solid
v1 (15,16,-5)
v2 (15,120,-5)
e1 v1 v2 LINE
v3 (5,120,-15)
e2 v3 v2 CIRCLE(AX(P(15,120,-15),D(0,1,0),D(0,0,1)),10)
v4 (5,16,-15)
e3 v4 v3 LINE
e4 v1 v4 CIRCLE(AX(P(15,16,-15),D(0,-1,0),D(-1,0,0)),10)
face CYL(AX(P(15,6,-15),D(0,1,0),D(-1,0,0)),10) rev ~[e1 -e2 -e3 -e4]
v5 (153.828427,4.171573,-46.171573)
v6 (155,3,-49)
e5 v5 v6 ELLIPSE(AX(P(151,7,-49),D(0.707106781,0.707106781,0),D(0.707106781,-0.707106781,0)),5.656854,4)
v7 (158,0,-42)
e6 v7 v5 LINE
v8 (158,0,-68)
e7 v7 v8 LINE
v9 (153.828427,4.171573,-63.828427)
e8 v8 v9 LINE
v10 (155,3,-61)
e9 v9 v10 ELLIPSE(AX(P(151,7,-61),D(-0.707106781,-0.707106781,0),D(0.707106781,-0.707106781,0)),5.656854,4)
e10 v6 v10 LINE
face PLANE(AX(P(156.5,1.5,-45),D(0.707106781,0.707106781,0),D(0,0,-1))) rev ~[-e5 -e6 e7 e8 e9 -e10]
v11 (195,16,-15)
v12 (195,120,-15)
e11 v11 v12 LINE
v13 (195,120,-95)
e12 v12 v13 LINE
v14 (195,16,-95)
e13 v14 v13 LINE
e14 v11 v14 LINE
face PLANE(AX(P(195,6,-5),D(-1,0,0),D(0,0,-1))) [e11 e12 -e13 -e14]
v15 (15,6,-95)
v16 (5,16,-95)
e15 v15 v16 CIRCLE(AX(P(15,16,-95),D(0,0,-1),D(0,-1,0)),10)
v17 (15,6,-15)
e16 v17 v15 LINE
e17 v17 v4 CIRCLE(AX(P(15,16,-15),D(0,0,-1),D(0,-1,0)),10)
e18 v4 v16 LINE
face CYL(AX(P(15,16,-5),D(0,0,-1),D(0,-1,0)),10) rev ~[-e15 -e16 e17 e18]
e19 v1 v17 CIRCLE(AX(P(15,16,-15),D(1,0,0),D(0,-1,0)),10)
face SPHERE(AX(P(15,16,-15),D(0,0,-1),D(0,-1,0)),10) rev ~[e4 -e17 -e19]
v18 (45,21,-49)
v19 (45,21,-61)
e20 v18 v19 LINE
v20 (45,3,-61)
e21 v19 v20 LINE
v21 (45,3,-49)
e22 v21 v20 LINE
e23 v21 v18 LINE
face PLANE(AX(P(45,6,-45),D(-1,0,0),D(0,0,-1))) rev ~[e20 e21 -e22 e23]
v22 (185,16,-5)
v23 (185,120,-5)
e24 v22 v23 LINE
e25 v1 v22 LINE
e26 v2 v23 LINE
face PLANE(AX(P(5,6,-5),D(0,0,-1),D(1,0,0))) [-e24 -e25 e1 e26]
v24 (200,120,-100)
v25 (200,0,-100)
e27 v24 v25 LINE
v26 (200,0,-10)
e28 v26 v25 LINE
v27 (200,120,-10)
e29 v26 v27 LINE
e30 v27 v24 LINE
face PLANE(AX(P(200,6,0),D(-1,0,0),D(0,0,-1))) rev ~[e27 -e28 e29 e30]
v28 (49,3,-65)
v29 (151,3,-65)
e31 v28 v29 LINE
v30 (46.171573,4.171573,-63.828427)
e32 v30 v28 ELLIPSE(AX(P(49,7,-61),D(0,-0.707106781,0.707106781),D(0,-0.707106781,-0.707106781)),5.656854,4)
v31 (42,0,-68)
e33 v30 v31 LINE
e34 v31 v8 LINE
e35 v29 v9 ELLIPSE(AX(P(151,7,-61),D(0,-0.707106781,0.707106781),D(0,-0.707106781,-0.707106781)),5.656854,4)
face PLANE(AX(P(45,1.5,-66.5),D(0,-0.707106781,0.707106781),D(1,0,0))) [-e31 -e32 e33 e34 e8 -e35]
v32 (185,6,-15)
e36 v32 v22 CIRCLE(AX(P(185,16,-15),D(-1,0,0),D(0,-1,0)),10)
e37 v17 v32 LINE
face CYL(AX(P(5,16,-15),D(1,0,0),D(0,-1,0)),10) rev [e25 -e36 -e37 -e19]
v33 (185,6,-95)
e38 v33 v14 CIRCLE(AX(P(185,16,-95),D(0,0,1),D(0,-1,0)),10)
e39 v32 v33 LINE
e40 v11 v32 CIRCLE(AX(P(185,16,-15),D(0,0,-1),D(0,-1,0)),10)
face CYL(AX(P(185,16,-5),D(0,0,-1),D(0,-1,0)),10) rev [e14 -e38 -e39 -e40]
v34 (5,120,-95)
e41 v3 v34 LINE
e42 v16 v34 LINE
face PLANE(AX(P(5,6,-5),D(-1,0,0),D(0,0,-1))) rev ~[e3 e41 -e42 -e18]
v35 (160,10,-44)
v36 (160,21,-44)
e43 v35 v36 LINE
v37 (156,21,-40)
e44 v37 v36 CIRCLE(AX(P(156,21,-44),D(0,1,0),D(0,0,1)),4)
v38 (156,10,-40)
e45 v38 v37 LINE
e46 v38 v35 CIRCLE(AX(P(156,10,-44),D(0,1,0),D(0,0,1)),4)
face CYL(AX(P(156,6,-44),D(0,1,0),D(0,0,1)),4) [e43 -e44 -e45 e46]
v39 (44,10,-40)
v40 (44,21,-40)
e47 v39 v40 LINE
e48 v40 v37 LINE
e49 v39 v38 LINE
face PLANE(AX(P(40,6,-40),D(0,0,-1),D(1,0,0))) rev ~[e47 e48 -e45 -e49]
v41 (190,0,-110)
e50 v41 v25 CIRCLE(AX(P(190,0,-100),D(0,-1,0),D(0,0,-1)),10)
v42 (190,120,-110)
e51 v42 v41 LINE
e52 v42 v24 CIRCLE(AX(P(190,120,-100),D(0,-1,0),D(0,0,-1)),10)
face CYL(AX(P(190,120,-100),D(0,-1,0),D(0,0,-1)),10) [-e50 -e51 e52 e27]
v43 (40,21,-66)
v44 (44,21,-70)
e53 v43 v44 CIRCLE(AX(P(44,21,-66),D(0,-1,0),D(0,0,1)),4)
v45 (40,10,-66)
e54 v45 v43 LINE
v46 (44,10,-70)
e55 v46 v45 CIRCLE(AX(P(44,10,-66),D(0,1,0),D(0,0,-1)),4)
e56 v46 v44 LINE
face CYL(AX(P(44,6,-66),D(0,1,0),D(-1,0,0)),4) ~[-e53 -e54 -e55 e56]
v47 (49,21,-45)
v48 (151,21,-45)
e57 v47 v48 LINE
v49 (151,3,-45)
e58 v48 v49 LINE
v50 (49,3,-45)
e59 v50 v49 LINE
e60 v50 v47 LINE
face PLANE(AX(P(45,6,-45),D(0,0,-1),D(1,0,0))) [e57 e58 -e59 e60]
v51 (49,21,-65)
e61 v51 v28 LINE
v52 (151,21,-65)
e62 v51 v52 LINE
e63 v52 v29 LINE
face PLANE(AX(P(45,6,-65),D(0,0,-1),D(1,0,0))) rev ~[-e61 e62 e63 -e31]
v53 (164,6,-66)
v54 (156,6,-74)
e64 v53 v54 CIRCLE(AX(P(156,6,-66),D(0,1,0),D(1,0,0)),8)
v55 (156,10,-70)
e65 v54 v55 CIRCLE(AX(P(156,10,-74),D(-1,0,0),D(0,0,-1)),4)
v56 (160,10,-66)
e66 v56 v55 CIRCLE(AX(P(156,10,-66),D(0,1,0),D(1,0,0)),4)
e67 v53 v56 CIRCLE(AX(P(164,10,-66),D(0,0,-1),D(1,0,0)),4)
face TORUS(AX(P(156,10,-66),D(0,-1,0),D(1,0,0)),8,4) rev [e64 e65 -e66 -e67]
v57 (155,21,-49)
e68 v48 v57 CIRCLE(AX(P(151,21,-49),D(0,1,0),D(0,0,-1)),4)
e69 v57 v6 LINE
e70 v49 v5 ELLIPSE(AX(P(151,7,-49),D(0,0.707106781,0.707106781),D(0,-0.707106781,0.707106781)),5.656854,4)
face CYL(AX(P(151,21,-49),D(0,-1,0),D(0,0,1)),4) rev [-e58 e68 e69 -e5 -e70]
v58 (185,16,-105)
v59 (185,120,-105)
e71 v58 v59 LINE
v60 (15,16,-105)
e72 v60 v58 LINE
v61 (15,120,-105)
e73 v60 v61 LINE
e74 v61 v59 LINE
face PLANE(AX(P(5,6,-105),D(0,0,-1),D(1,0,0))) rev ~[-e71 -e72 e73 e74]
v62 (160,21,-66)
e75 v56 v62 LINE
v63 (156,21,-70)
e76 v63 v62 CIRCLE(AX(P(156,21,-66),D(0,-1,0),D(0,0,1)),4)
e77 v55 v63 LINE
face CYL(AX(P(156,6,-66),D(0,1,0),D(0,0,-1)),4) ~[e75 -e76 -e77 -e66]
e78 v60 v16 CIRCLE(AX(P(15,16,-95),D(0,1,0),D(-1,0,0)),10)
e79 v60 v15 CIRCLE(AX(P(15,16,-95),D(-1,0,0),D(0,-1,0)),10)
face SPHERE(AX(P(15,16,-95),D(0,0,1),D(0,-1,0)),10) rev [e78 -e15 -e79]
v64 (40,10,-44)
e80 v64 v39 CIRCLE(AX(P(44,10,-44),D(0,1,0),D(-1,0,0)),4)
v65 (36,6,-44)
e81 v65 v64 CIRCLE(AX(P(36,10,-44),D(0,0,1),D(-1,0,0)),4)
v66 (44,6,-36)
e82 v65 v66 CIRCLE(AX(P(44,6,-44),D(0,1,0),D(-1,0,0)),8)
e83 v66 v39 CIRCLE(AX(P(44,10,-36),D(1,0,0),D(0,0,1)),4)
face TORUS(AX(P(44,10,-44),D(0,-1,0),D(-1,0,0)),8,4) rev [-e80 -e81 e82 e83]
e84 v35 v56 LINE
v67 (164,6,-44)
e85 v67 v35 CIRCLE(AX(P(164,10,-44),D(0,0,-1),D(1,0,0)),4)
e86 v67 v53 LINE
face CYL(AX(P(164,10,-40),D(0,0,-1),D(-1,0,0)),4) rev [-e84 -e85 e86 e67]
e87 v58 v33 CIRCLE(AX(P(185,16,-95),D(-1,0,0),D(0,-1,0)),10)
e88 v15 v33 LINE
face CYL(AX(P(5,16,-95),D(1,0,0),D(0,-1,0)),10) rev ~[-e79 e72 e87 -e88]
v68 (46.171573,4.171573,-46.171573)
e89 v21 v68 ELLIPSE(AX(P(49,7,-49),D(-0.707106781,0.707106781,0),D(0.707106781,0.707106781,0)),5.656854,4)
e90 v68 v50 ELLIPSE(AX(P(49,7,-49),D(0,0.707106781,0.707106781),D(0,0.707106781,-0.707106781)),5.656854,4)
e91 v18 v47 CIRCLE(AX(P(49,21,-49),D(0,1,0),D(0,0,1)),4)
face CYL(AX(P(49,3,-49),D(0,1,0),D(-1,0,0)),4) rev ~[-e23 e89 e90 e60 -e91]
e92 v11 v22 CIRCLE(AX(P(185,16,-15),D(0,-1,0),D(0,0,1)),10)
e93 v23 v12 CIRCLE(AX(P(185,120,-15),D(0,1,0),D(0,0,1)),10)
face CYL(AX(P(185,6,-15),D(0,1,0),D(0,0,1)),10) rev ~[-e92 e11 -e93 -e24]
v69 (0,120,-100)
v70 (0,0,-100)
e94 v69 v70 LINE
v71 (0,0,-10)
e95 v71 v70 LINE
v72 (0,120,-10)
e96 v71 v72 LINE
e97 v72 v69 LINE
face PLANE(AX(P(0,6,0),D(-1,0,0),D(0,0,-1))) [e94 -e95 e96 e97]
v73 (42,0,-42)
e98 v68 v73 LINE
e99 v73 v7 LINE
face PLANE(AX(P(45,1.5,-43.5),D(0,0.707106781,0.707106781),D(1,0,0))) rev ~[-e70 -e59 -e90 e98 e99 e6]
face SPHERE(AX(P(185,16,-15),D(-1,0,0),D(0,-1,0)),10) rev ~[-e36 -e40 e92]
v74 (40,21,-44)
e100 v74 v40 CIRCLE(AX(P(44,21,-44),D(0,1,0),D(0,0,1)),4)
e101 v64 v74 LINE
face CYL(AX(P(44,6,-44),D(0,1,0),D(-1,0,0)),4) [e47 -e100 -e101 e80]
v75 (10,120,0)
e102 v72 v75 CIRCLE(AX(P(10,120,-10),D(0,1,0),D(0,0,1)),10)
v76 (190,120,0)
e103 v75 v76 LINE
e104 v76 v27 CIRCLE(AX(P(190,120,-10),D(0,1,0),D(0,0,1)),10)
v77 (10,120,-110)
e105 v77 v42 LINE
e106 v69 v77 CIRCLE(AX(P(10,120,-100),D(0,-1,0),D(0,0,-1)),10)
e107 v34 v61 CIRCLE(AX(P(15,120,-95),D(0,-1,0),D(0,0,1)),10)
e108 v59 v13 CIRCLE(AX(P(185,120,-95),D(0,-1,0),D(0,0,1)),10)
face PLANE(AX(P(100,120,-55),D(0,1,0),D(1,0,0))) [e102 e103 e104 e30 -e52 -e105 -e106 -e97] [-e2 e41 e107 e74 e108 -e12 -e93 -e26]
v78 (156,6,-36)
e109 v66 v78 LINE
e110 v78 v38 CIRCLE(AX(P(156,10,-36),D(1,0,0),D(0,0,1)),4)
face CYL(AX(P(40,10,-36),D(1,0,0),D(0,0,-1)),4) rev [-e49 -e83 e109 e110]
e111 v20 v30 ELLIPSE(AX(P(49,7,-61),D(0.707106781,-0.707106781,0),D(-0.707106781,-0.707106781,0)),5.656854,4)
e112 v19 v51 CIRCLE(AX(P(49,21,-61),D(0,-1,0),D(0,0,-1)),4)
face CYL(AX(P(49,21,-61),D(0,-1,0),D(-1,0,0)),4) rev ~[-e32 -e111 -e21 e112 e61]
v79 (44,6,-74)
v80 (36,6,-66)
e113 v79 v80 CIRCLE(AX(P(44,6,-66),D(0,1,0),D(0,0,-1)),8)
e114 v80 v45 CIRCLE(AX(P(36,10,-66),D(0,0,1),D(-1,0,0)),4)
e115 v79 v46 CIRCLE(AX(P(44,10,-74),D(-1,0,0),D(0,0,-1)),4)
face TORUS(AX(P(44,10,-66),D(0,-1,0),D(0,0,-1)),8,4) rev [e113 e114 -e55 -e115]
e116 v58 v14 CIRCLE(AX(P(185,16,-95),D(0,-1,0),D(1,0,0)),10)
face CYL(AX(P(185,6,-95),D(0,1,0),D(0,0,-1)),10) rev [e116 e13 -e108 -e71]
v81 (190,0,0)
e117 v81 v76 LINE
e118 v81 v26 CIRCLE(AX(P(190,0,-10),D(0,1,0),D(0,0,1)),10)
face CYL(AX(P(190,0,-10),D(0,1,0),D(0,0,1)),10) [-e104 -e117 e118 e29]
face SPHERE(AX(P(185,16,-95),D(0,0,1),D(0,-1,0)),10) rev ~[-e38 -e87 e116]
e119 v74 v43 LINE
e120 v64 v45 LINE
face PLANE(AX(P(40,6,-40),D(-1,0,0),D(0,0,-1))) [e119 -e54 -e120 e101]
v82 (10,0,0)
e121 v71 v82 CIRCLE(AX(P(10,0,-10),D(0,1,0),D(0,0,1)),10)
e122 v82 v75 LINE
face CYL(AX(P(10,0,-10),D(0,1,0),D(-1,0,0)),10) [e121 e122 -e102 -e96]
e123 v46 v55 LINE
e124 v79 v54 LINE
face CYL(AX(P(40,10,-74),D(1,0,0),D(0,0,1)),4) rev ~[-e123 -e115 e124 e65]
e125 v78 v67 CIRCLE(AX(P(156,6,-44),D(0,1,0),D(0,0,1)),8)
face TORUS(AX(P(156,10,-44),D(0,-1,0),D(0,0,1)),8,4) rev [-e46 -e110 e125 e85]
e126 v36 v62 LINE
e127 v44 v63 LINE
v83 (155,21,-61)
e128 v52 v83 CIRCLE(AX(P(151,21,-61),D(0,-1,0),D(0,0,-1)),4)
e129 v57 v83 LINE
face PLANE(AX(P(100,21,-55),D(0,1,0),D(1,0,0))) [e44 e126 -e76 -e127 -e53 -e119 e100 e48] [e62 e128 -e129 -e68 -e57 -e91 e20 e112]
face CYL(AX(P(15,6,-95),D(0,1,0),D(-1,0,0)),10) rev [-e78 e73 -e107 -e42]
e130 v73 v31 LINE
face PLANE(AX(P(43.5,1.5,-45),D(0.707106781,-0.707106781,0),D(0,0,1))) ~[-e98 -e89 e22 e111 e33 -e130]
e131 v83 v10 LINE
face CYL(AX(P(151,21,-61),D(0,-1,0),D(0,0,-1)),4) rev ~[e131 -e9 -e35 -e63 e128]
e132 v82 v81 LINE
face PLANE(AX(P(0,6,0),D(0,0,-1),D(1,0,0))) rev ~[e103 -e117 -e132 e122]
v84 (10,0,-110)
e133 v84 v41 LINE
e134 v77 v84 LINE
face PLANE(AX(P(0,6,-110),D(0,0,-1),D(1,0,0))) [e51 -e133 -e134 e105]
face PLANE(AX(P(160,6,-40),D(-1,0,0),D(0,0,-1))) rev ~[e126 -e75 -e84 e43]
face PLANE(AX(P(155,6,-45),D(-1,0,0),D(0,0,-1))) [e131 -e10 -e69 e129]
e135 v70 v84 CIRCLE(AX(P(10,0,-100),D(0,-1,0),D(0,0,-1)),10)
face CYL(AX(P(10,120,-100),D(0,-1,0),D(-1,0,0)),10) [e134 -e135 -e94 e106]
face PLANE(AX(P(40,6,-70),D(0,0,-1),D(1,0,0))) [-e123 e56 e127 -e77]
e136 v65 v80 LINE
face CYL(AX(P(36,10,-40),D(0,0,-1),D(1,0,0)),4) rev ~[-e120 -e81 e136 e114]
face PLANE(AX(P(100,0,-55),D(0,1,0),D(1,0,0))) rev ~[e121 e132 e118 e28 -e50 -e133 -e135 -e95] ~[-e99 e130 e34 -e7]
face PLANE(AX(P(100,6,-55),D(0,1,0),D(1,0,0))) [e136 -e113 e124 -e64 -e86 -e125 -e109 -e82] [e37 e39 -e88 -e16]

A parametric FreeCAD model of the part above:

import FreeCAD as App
import Part
import Sketcher
from FreeCAD import Vector
Q = App.Units.Quantity


def edges_at(feature, points):
    """Names of the edges that pass closest to the given points."""
    edges = feature.Shape.Edges
    near = lambda p: min(range(len(edges)), key=lambda i: edges[i].distToShape(Part.Vertex(*p))[0])
    return sorted({f"Edge{near(p) + 1}" for p in points})

doc = App.newDocument("Part")
body = doc.addObject("PartDesign::Body", "Body")

sketch1 = body.newObject("Sketcher::SketchObject", "Sketch")
sketch1.AttachmentSupport = (doc.getObject("XZ_Plane"), [""])
sketch1.MapMode = "FlatFace"
sketch1.addGeometry([
    Part.LineSegment(Vector(0, -110, 0), Vector(0, 0, 0)),
    Part.LineSegment(Vector(0, 0, 0), Vector(200, 0, 0)),
    Part.LineSegment(Vector(200, 0, 0), Vector(200, -110, 0)),
    Part.LineSegment(Vector(200, -110, 0), Vector(0, -110, 0)),
], False)
sketch1.addConstraint([
    Sketcher.Constraint("Coincident", 0, 2, 1, 1),
    Sketcher.Constraint("Coincident", 1, 2, 2, 1),
    Sketcher.Constraint("Coincident", 2, 2, 3, 1),
    Sketcher.Constraint("Coincident", 3, 2, 0, 1),
    Sketcher.Constraint("Vertical", 0),
    Sketcher.Constraint("Horizontal", 1),
    Sketcher.Constraint("Vertical", 2),
    Sketcher.Constraint("Horizontal", 3),
    Sketcher.Constraint("Coincident", 0, 2, -1, 1),
    Sketcher.Constraint("DistanceX", 1, 1, 1, 2, Q("200 mm")),
    Sketcher.Constraint("DistanceY", 0, 1, 0, 2, Q("110 mm")),
])
pad1 = body.newObject("PartDesign::Pad", "Pad")
pad1.Profile = sketch1
pad1.Length = 6
pad1.Reversed = True

sketch2 = body.newObject("Sketcher::SketchObject", "Sketch001")
sketch2.AttachmentSupport = (doc.getObject("XZ_Plane"), [""])
sketch2.MapMode = "FlatFace"
sketch2.AttachmentOffset = App.Placement(Vector(0, 0, -6), App.Rotation())
sketch2.addGeometry([
    Part.LineSegment(Vector(0, -110, 0), Vector(0, 0, 0)),
    Part.LineSegment(Vector(0, 0, 0), Vector(200, 0, 0)),
    Part.LineSegment(Vector(200, 0, 0), Vector(200, -110, 0)),
    Part.LineSegment(Vector(200, -110, 0), Vector(0, -110, 0)),
    Part.LineSegment(Vector(195, -5, 0), Vector(5, -5, 0)),
    Part.LineSegment(Vector(5, -5, 0), Vector(5, -105, 0)),
    Part.LineSegment(Vector(5, -105, 0), Vector(195, -105, 0)),
    Part.LineSegment(Vector(195, -105, 0), Vector(195, -5, 0)),
], False)
sketch2.addConstraint([
    Sketcher.Constraint("Coincident", 0, 2, 1, 1),
    Sketcher.Constraint("Coincident", 1, 2, 2, 1),
    Sketcher.Constraint("Coincident", 2, 2, 3, 1),
    Sketcher.Constraint("Coincident", 3, 2, 0, 1),
    Sketcher.Constraint("Coincident", 4, 2, 5, 1),
    Sketcher.Constraint("Coincident", 5, 2, 6, 1),
    Sketcher.Constraint("Coincident", 6, 2, 7, 1),
    Sketcher.Constraint("Coincident", 7, 2, 4, 1),
    Sketcher.Constraint("Vertical", 0),
    Sketcher.Constraint("Horizontal", 1),
    Sketcher.Constraint("Vertical", 2),
    Sketcher.Constraint("Horizontal", 3),
    Sketcher.Constraint("Horizontal", 4),
    Sketcher.Constraint("Vertical", 5),
    Sketcher.Constraint("Horizontal", 6),
    Sketcher.Constraint("Vertical", 7),
    Sketcher.Constraint("Coincident", 0, 2, -1, 1),
    Sketcher.Constraint("DistanceX", 1, 1, 1, 2, Q("200 mm")),
    Sketcher.Constraint("DistanceX", 4, 2, 4, 1, Q("190 mm")),
    Sketcher.Constraint("DistanceY", 0, 1, 0, 2, Q("110 mm")),
    Sketcher.Constraint("DistanceY", 5, 2, 5, 1, Q("100 mm")),
    Sketcher.Constraint("DistanceX", -1, 1, 4, 2, Q("5 mm")),
    Sketcher.Constraint("DistanceY", 4, 2, -1, 1, Q("5 mm")),
])
pad2 = body.newObject("PartDesign::Pad", "Pad001")
pad2.Profile = sketch2
pad2.Length = 114
pad2.Reversed = True

sketch3 = body.newObject("Sketcher::SketchObject", "Sketch002")
sketch3.AttachmentSupport = (doc.getObject("XZ_Plane"), [""])
sketch3.MapMode = "FlatFace"
sketch3.AttachmentOffset = App.Placement(Vector(0, 0, -6), App.Rotation())
sketch3.addGeometry([
    Part.LineSegment(Vector(45, -65, 0), Vector(45, -45, 0)),
    Part.LineSegment(Vector(45, -45, 0), Vector(155, -45, 0)),
    Part.LineSegment(Vector(155, -45, 0), Vector(155, -65, 0)),
    Part.LineSegment(Vector(155, -65, 0), Vector(45, -65, 0)),
], False)
sketch3.addConstraint([
    Sketcher.Constraint("Coincident", 0, 2, 1, 1),
    Sketcher.Constraint("Coincident", 1, 2, 2, 1),
    Sketcher.Constraint("Coincident", 2, 2, 3, 1),
    Sketcher.Constraint("Coincident", 3, 2, 0, 1),
    Sketcher.Constraint("Vertical", 0),
    Sketcher.Constraint("Horizontal", 1),
    Sketcher.Constraint("Vertical", 2),
    Sketcher.Constraint("Horizontal", 3),
    Sketcher.Constraint("DistanceX", 1, 1, 1, 2, Q("110 mm")),
    Sketcher.Constraint("DistanceY", 0, 1, 0, 2, Q("20 mm")),
    Sketcher.Constraint("DistanceX", -1, 1, 0, 2, Q("45 mm")),
    Sketcher.Constraint("DistanceY", 0, 2, -1, 1, Q("45 mm")),
])
pocket1 = body.newObject("PartDesign::Pocket", "Pocket")
pocket1.Profile = sketch3
pocket1.Type = "ThroughAll"
pocket1.Reversed = True

sketch4 = body.newObject("Sketcher::SketchObject", "Sketch003")
sketch4.AttachmentSupport = (doc.getObject("XZ_Plane"), [""])
sketch4.MapMode = "FlatFace"
sketch4.AttachmentOffset = App.Placement(Vector(0, 0, -6), App.Rotation())
sketch4.addGeometry([
    Part.LineSegment(Vector(40, -70, 0), Vector(40, -40, 0)),
    Part.LineSegment(Vector(40, -40, 0), Vector(160, -40, 0)),
    Part.LineSegment(Vector(160, -40, 0), Vector(160, -70, 0)),
    Part.LineSegment(Vector(160, -70, 0), Vector(40, -70, 0)),
    Part.LineSegment(Vector(155, -45, 0), Vector(45, -45, 0)),
    Part.LineSegment(Vector(45, -45, 0), Vector(45, -65, 0)),
    Part.LineSegment(Vector(45, -65, 0), Vector(155, -65, 0)),
    Part.LineSegment(Vector(155, -65, 0), Vector(155, -45, 0)),
], False)
sketch4.addConstraint([
    Sketcher.Constraint("Coincident", 0, 2, 1, 1),
    Sketcher.Constraint("Coincident", 1, 2, 2, 1),
    Sketcher.Constraint("Coincident", 2, 2, 3, 1),
    Sketcher.Constraint("Coincident", 3, 2, 0, 1),
    Sketcher.Constraint("Coincident", 4, 2, 5, 1),
    Sketcher.Constraint("Coincident", 5, 2, 6, 1),
    Sketcher.Constraint("Coincident", 6, 2, 7, 1),
    Sketcher.Constraint("Coincident", 7, 2, 4, 1),
    Sketcher.Constraint("Vertical", 0),
    Sketcher.Constraint("Horizontal", 1),
    Sketcher.Constraint("Vertical", 2),
    Sketcher.Constraint("Horizontal", 3),
    Sketcher.Constraint("Horizontal", 4),
    Sketcher.Constraint("Vertical", 5),
    Sketcher.Constraint("Horizontal", 6),
    Sketcher.Constraint("Vertical", 7),
    Sketcher.Constraint("DistanceX", 1, 1, 1, 2, Q("120 mm")),
    Sketcher.Constraint("DistanceX", 4, 2, 4, 1, Q("110 mm")),
    Sketcher.Constraint("DistanceY", 0, 1, 0, 2, Q("30 mm")),
    Sketcher.Constraint("DistanceY", 5, 2, 5, 1, Q("20 mm")),
    Sketcher.Constraint("DistanceX", -1, 1, 0, 2, Q("40 mm")),
    Sketcher.Constraint("DistanceY", 0, 2, -1, 1, Q("40 mm")),
    Sketcher.Constraint("DistanceX", -1, 1, 4, 2, Q("45 mm")),
    Sketcher.Constraint("DistanceY", 4, 2, -1, 1, Q("45 mm")),
])
pad3 = body.newObject("PartDesign::Pad", "Pad002")
pad3.Profile = sketch4
pad3.Length = 15
pad3.Reversed = True
doc.recompute()

chamfer = body.newObject("PartDesign::Chamfer", "Chamfer")
chamfer.Base = (pad3, edges_at(pad3, [
    (45, 0, -55),
    (100, 0, -65),
    (155, 0, -55),
    (100, 0, -45),
]))
chamfer.Size = 3
doc.recompute()

fillet = body.newObject("PartDesign::Fillet", "Fillet")
fillet.Base = (chamfer, edges_at(chamfer, [
    (5, 6, -55),
    (100, 6, -5),
    (195, 6, -55),
    (100, 6, -105),
    (195, 63, -5),
    (195, 63, -105),
    (5, 63, -105),
    (5, 63, -5),
    (0, 60, -110),
    (200, 60, -110),
    (200, 60, 0),
    (0, 60, 0),
]))
fillet.Radius = 10
doc.recompute()

fillet2 = body.newObject("PartDesign::Fillet", "Fillet001")
fillet2.Base = (fillet, edges_at(fillet, [
    (100, 6, -70),
    (160, 13.5, -70),
    (40, 6, -55),
    (40, 13.5, -70),
    (100, 6, -40),
    (40, 13.5, -40),
    (160, 6, -55),
    (160, 13.5, -40),
    (155, 12, -45),
    (155, 12, -65),
    (45, 12, -65),
    (45, 12, -45),
]))
fillet2.Radius = 4

doc.recompute()
